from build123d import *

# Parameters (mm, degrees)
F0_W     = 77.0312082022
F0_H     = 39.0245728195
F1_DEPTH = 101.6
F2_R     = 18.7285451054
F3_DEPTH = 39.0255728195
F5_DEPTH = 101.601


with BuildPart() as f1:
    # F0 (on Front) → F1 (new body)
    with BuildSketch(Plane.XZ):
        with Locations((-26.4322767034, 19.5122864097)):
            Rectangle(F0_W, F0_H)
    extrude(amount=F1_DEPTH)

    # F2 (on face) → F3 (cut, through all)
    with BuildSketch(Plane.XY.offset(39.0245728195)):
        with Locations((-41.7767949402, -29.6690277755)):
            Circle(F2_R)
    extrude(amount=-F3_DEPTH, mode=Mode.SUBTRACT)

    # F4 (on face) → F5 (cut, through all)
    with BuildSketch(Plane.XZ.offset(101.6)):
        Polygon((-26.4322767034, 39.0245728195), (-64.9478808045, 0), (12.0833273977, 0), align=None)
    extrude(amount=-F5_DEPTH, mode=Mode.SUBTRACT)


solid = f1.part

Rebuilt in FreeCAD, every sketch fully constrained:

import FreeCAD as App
import Part
import Sketcher
from FreeCAD import Vector
Q = App.Units.Quantity


def add_polygon(sketch, points):
    """Adds a closed chain of lines whose ends are joined by coincident constraints."""
    first, n = sketch.GeometryCount, len(points)
    for a, b in zip(points, points[1:] + points[:1]):
        sketch.addGeometry(Part.LineSegment(App.Vector(*a, 0), App.Vector(*b, 0)), False)
    for i in range(n):
        sketch.addConstraint(Sketcher.Constraint("Coincident", first + i, 2, first + (i + 1) % n, 1))

doc = App.newDocument("Part")
body = doc.addObject("PartDesign::Body", "Body")
body.AllowCompound = True

sketch1 = body.newObject("Sketcher::SketchObject", "Sketch")
sketch1.AttachmentSupport = (doc.getObject("XZ_Plane"), [""])
sketch1.MapMode = "FlatFace"
add_polygon(sketch1, [(-65, 39), (-65, 0), (12, 0), (12, 39)])
sketch1.addConstraint([
    Sketcher.Constraint("Vertical", 0),
    Sketcher.Constraint("Horizontal", 1),
    Sketcher.Constraint("Vertical", 2),
    Sketcher.Constraint("Horizontal", 3),
    Sketcher.Constraint("PointOnObject", 0, 2, -1),
    Sketcher.Constraint("DistanceX", 1, 1, 1, 2, 77.031208),
    Sketcher.Constraint("DistanceY", 0, 2, 0, 1, 39.024573),
    Sketcher.Constraint("DistanceX", 0, 2, -1, 1, 64.947881),
])
pad1 = body.newObject("PartDesign::Pad", "Pad")
pad1.Profile = sketch1
pad1.Length = Q("4 in")

sketch2 = body.newObject("Sketcher::SketchObject", "Sketch001")
sketch2.AttachmentSupport = (doc.getObject("XY_Plane"), [""])
sketch2.MapMode = "FlatFace"
sketch2.AttachmentOffset = App.Placement(Vector(0, 0, 39.024573), App.Rotation())
sketch2.addGeometry(Part.Circle(Vector(-42, -30, 0), Vector(0, 0, 1), 19), False)
sketch2.addConstraint([
    Sketcher.Constraint("Diameter", 0, 37.45709),
    Sketcher.Constraint("DistanceX", 0, 3, -1, 1, 41.776795),
    Sketcher.Constraint("DistanceY", 0, 3, -1, 1, 29.669028),
])
pocket1 = body.newObject("PartDesign::Pocket", "Pocket")
pocket1.Profile = sketch2
pocket1.Type = "ThroughAll"

sketch3 = body.newObject("Sketcher::SketchObject", "Sketch002")
sketch3.AttachmentSupport = (doc.getObject("XZ_Plane"), [""])
sketch3.MapMode = "FlatFace"
sketch3.AttachmentOffset = App.Placement(Vector(0, 0, 4 * 25.4), App.Rotation())
add_polygon(sketch3, [(-26, 39), (-65, 0), (12, 0)])
sketch3.addConstraint([
    Sketcher.Constraint("Horizontal", 1),
    Sketcher.Constraint("PointOnObject", 0, 2, -1),
    Sketcher.Constraint("Equal", 0, 2),
    Sketcher.Constraint("DistanceX", 1, 1, 1, 2, 77.031208),
    Sketcher.Constraint("DistanceX", 0, 2, -1, 1, 64.947881),
    Sketcher.Constraint("Distance", 0, 54.830366),
])
pocket2 = body.newObject("PartDesign::Pocket", "Pocket001")
pocket2.Profile = sketch3
pocket2.Type = "ThroughAll"

doc.recompute()
